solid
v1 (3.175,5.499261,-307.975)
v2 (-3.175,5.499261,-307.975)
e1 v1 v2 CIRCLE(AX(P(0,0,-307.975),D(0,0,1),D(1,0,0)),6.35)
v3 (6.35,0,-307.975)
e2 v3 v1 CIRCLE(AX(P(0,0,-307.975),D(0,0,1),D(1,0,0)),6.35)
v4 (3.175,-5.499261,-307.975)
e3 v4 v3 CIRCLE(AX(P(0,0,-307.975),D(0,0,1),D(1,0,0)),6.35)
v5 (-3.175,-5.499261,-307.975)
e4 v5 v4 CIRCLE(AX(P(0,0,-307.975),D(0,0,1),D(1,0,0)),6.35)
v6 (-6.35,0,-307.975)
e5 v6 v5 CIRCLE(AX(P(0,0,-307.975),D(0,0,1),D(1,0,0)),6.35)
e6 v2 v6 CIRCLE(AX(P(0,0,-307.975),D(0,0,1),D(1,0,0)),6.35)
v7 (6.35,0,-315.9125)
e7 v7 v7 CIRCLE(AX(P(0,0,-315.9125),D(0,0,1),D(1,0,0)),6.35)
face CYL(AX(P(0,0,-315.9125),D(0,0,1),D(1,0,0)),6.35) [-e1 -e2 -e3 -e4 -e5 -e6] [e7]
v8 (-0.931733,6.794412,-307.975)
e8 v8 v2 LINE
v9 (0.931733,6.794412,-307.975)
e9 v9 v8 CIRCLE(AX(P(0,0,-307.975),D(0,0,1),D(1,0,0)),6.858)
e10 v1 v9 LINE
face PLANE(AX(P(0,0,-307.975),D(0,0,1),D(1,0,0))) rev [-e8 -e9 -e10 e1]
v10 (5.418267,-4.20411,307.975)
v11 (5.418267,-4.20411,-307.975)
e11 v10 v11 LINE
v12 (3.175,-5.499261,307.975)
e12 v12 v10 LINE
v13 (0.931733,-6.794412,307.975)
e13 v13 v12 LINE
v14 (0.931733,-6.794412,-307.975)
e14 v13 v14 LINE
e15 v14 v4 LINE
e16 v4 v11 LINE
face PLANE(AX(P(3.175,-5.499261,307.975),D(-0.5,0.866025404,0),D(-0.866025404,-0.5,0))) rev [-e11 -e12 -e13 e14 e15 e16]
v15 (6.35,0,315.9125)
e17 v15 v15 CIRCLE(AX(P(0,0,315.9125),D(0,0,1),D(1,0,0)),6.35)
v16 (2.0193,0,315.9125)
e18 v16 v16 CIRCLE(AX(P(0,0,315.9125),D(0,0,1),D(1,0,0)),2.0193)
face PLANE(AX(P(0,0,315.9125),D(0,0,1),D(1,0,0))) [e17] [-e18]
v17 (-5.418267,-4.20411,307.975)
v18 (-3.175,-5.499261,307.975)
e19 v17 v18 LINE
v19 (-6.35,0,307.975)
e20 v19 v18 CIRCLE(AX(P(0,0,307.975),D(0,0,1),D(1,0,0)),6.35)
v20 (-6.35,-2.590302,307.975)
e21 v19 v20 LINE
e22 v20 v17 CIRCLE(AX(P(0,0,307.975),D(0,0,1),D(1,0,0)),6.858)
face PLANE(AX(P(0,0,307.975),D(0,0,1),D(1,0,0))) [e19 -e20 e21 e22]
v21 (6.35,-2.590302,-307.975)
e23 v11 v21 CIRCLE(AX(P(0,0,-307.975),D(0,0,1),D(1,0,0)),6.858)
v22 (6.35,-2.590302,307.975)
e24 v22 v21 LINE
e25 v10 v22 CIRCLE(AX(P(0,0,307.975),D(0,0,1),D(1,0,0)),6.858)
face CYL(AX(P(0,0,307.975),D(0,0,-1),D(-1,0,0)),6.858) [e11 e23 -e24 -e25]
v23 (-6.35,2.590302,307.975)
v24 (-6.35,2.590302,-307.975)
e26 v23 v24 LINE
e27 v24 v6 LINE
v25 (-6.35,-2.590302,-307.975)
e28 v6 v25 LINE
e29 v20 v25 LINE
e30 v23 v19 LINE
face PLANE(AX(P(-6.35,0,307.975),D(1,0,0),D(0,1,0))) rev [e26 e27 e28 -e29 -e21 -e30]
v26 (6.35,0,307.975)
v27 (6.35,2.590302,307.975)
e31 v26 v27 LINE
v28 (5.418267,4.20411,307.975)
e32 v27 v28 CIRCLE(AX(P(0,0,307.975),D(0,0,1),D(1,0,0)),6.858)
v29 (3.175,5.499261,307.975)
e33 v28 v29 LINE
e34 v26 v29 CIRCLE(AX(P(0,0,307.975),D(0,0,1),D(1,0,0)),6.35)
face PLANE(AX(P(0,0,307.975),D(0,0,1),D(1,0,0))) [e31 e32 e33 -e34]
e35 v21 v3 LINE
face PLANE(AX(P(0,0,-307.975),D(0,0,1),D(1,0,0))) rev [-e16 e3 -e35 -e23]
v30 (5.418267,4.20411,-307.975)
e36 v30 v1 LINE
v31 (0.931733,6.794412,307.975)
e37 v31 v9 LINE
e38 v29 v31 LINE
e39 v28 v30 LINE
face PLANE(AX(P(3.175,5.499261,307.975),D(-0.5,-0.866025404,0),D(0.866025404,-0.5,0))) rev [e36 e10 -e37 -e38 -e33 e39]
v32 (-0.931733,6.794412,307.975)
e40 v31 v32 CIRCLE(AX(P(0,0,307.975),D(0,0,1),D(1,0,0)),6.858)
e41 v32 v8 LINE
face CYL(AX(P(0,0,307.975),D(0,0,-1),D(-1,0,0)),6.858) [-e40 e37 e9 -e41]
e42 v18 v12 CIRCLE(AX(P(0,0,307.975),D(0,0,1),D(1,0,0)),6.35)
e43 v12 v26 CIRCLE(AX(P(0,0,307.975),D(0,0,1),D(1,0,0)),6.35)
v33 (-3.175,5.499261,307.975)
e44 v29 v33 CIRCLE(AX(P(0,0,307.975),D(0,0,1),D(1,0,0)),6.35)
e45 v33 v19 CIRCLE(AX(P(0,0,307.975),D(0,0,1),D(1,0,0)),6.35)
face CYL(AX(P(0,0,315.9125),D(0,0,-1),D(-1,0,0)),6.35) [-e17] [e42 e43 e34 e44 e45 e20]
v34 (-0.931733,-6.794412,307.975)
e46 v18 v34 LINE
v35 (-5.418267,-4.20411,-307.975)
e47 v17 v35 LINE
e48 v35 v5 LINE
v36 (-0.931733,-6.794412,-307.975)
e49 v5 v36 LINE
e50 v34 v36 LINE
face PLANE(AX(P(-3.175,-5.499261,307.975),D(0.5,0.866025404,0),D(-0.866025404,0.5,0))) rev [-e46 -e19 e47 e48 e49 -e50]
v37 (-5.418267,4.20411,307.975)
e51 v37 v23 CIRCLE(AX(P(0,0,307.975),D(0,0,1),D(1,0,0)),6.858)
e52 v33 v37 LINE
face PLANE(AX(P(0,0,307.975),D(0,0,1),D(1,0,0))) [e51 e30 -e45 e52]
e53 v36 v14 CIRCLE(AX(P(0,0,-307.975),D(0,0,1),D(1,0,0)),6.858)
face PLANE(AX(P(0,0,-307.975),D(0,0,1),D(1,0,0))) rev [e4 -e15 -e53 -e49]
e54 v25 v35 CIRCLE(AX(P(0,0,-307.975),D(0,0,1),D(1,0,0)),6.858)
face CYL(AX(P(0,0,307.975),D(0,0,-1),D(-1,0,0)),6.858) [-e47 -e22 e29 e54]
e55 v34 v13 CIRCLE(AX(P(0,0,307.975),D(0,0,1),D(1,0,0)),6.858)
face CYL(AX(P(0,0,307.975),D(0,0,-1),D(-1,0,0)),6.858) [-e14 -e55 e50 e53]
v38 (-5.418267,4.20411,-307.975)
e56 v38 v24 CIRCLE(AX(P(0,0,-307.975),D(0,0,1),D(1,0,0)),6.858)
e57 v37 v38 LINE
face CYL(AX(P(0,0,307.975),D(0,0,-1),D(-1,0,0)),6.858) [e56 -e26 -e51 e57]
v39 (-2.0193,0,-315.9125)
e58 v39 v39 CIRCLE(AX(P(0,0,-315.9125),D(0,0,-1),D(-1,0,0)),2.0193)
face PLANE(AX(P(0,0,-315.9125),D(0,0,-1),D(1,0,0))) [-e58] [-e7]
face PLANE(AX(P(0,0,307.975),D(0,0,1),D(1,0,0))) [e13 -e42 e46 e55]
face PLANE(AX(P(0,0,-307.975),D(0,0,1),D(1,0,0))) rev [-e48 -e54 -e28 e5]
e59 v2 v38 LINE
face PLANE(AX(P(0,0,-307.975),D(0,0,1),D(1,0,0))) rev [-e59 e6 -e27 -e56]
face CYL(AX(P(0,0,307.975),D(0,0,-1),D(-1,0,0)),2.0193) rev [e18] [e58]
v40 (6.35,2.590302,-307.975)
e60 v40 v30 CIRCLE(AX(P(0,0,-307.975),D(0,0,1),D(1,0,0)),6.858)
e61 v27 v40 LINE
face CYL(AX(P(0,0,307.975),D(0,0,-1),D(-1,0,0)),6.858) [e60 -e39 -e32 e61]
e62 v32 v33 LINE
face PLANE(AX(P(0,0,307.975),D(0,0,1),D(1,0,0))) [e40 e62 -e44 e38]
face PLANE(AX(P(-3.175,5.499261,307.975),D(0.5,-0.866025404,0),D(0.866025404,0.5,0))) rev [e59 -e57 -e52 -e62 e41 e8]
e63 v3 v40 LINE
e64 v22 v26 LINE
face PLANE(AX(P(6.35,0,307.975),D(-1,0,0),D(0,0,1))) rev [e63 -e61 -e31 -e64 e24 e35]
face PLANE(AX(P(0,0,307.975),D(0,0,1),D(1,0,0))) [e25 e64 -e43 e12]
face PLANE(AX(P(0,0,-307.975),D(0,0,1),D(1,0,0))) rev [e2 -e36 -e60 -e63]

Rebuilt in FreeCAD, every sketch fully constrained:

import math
import FreeCAD as App
import Part
import Sketcher
from FreeCAD import Vector
Q = App.Units.Quantity

doc = App.newDocument("Part")
body = doc.addObject("PartDesign::Body", "Body")

# Sketch on XY plane
sketch1 = body.newObject("Sketcher::SketchObject", "Sketch")
sketch1.AttachmentSupport = (doc.getObject("XY_Plane"), [""])
sketch1.MapMode = "FlatFace"
sketch1.addGeometry(Part.ArcOfCircle(Part.Circle(Vector(0, 0, 0), Vector(0, 0, 1), 6.858), math.radians(82.191607), math.radians(97.808393)), False)
sketch1.addGeometry(Part.LineSegment(Vector(-0.931733, 6.794412, 0), Vector(-5.418267, 4.20411, 0)), False)
sketch1.addGeometry(Part.ArcOfCircle(Part.Circle(Vector(0, 0, 0), Vector(0, 0, 1), 6.858), math.radians(142.191607), math.radians(157.808393)), False)
sketch1.addGeometry(Part.LineSegment(Vector(-6.35, 2.590302, 0), Vector(-6.35, -2.590302, 0)), False)
sketch1.addGeometry(Part.ArcOfCircle(Part.Circle(Vector(0, 0, 0), Vector(0, 0, 1), 6.858), math.radians(-157.808393), math.radians(-142.191607)), False)
sketch1.addGeometry(Part.LineSegment(Vector(-5.418267, -4.20411, 0), Vector(-0.931733, -6.794412, 0)), False)
sketch1.addGeometry(Part.ArcOfCircle(Part.Circle(Vector(0, 0, 0), Vector(0, 0, 1), 6.858), math.radians(-97.808393), math.radians(-82.191607)), False)
sketch1.addGeometry(Part.LineSegment(Vector(0.931733, -6.794412, 0), Vector(5.418267, -4.20411, 0)), False)
sketch1.addGeometry(Part.ArcOfCircle(Part.Circle(Vector(0, 0, 0), Vector(0, 0, 1), 6.858), math.radians(-37.808393), math.radians(-22.191607)), False)
sketch1.addGeometry(Part.LineSegment(Vector(6.35, -2.590302, 0), Vector(6.35, 2.590302, 0)), False)
sketch1.addGeometry(Part.ArcOfCircle(Part.Circle(Vector(0, 0, 0), Vector(0, 0, 1), 6.858), math.radians(22.191607), math.radians(37.808393)), False)
sketch1.addGeometry(Part.LineSegment(Vector(5.418267, 4.20411, 0), Vector(0.931733, 6.794412, 0)), False)
sketch1.addGeometry(Part.Circle(Vector(0, 0, 0), Vector(0, 0, 1), 2.0193), False)
sketch1.addConstraint(Sketcher.Constraint("Coincident", 0, 2, 1, 1))
sketch1.addConstraint(Sketcher.Constraint("Coincident", 1, 2, 2, 1))
sketch1.addConstraint(Sketcher.Constraint("Coincident", 2, 2, 3, 1))
sketch1.addConstraint(Sketcher.Constraint("Coincident", 3, 2, 4, 1))
sketch1.addConstraint(Sketcher.Constraint("Coincident", 4, 2, 5, 1))
sketch1.addConstraint(Sketcher.Constraint("Coincident", 5, 2, 6, 1))
sketch1.addConstraint(Sketcher.Constraint("Coincident", 6, 2, 7, 1))
sketch1.addConstraint(Sketcher.Constraint("Coincident", 7, 2, 8, 1))
sketch1.addConstraint(Sketcher.Constraint("Coincident", 8, 2, 9, 1))
sketch1.addConstraint(Sketcher.Constraint("Coincident", 9, 2, 10, 1))
sketch1.addConstraint(Sketcher.Constraint("Coincident", 10, 2, 11, 1))
sketch1.addConstraint(Sketcher.Constraint("Coincident", 11, 2, 0, 1))
sketch1.addConstraint(Sketcher.Constraint("Vertical", 3))
sketch1.addConstraint(Sketcher.Constraint("Vertical", 9))
sketch1.addConstraint(Sketcher.Constraint("Coincident", 0, 3, -1, 1))
sketch1.addConstraint(Sketcher.Constraint("Coincident", 2, 3, -1, 1))
sketch1.addConstraint(Sketcher.Constraint("Coincident", 4, 3, -1, 1))
sketch1.addConstraint(Sketcher.Constraint("Coincident", 6, 3, -1, 1))
sketch1.addConstraint(Sketcher.Constraint("Coincident", 8, 3, -1, 1))
sketch1.addConstraint(Sketcher.Constraint("Coincident", 10, 3, -1, 1))
sketch1.addConstraint(Sketcher.Constraint("Coincident", 12, 3, -1, 1))
sketch1.addConstraint(Sketcher.Constraint("Equal", 0, 2))
sketch1.addConstraint(Sketcher.Constraint("Equal", 2, 4))
sketch1.addConstraint(Sketcher.Constraint("Equal", 4, 6))
sketch1.addConstraint(Sketcher.Constraint("Equal", 6, 8))
sketch1.addConstraint(Sketcher.Constraint("Equal", 8, 10))
sketch1.addConstraint(Sketcher.Constraint("Parallel", 1, 7))
sketch1.addConstraint(Sketcher.Constraint("Parallel", 5, 11))
sketch1.addConstraint(Sketcher.Constraint("Horizontal", 5, 2, 6, 2))
sketch1.addConstraint(Sketcher.Constraint("Horizontal", 4, 2, 7, 2))
sketch1.addConstraint(Sketcher.Constraint("Horizontal", 3, 2, 8, 2))
sketch1.addConstraint(Sketcher.Constraint("Horizontal", 1, 2, 10, 2))
sketch1.addConstraint(Sketcher.Constraint("Vertical", 1, 2, 4, 2))
sketch1.addConstraint(Sketcher.Constraint("Radius", 0, Q("0.27 in")))
sketch1.addConstraint(Sketcher.Constraint("Diameter", 12, Q("0.159 in")))
sketch1.addConstraint(Sketcher.Constraint("Angle", 1, Q("-150 deg")))
sketch1.addConstraint(Sketcher.Constraint("DistanceX", 2, 2, -1, 1, Q("0.25 in")))
sketch1.addConstraint(Sketcher.Constraint("DistanceX", 4, 2, 6, 2, Q("0.25 in")))
pad1 = body.newObject("PartDesign::Pad", "Pad")
pad1.Profile = sketch1
pad1.Length = Q("24.25 in")
pad1.Midplane = True

# Sketch on XY plane
sketch2 = body.newObject("Sketcher::SketchObject", "Sketch001")
sketch2.AttachmentSupport = (doc.getObject("XY_Plane"), [""])
sketch2.MapMode = "FlatFace"
sketch2.AttachmentOffset = App.Placement(Vector(0, 0, 12.125 * 25.4), App.Rotation())
sketch2.addGeometry(Part.Circle(Vector(0, 0, 0), Vector(0, 0, 1), 6.35), False)
sketch2.addConstraint(Sketcher.Constraint("Coincident", 0, 3, -1, 1))
sketch2.addConstraint(Sketcher.Constraint("Diameter", 0, Q("0.5 in")))
pad2 = body.newObject("PartDesign::Pad", "Pad001")
pad2.Profile = sketch2
pad2.Length = Q("0.3125 in")
doc.recompute()

mirrored = body.newObject("PartDesign::Mirrored", "Mirrored")
mirrored.Originals = [pad2]
mirrored.MirrorPlane = (doc.getObject("XY_Plane"), [""])
body.Tip = mirrored

# Sketch on XY plane
sketch3 = body.newObject("Sketcher::SketchObject", "Sketch002")
sketch3.AttachmentSupport = (doc.getObject("XY_Plane"), [""])
sketch3.MapMode = "FlatFace"
sketch3.AttachmentOffset = App.Placement(Vector(0, 0, 12.4375 * 25.4), App.Rotation())
sketch3.addGeometry(Part.Circle(Vector(0, 0, 0), Vector(0, 0, 1), 2.0193), False)
sketch3.addConstraint(Sketcher.Constraint("Coincident", 0, 3, -1, 1))
sketch3.addConstraint(Sketcher.Constraint("Diameter", 0, Q("0.159 in")))
doc.recompute()
hole = body.newObject("PartDesign::Hole", "Hole")
hole.Profile = sketch3
hole.ThreadType = "None"
hole.Diameter = Q("0.159 in")
hole.DepthType = "Dimension"
hole.Depth = Q("0.6436 in")
hole.DrillPoint = "Angled"
hole.DrillPointAngle = 118

# Sketch on XY plane
sketch4 = body.newObject("Sketcher::SketchObject", "Sketch003")
sketch4.AttachmentSupport = (doc.getObject("XY_Plane"), [""])
sketch4.MapMode = "FlatFace"
sketch4.AttachmentOffset = App.Placement(Vector(0, 0, -12.4375 * 25.4), App.Rotation())
sketch4.addGeometry(Part.Circle(Vector(0, 0, 0), Vector(0, 0, 1), 2.0193), False)
sketch4.addConstraint(Sketcher.Constraint("Coincident", 0, 3, -1, 1))
sketch4.addConstraint(Sketcher.Constraint("Diameter", 0, Q("0.159 in")))
doc.recompute()
hole2 = body.newObject("PartDesign::Hole", "Hole001")
hole2.Profile = sketch4
hole2.ThreadType = "None"
hole2.Diameter = Q("0.159 in")
hole2.DepthType = "Dimension"
hole2.Depth = Q("0.6436 in")
hole2.DrillPoint = "Angled"
hole2.DrillPointAngle = 118
hole2.Reversed = True

doc.recompute()
